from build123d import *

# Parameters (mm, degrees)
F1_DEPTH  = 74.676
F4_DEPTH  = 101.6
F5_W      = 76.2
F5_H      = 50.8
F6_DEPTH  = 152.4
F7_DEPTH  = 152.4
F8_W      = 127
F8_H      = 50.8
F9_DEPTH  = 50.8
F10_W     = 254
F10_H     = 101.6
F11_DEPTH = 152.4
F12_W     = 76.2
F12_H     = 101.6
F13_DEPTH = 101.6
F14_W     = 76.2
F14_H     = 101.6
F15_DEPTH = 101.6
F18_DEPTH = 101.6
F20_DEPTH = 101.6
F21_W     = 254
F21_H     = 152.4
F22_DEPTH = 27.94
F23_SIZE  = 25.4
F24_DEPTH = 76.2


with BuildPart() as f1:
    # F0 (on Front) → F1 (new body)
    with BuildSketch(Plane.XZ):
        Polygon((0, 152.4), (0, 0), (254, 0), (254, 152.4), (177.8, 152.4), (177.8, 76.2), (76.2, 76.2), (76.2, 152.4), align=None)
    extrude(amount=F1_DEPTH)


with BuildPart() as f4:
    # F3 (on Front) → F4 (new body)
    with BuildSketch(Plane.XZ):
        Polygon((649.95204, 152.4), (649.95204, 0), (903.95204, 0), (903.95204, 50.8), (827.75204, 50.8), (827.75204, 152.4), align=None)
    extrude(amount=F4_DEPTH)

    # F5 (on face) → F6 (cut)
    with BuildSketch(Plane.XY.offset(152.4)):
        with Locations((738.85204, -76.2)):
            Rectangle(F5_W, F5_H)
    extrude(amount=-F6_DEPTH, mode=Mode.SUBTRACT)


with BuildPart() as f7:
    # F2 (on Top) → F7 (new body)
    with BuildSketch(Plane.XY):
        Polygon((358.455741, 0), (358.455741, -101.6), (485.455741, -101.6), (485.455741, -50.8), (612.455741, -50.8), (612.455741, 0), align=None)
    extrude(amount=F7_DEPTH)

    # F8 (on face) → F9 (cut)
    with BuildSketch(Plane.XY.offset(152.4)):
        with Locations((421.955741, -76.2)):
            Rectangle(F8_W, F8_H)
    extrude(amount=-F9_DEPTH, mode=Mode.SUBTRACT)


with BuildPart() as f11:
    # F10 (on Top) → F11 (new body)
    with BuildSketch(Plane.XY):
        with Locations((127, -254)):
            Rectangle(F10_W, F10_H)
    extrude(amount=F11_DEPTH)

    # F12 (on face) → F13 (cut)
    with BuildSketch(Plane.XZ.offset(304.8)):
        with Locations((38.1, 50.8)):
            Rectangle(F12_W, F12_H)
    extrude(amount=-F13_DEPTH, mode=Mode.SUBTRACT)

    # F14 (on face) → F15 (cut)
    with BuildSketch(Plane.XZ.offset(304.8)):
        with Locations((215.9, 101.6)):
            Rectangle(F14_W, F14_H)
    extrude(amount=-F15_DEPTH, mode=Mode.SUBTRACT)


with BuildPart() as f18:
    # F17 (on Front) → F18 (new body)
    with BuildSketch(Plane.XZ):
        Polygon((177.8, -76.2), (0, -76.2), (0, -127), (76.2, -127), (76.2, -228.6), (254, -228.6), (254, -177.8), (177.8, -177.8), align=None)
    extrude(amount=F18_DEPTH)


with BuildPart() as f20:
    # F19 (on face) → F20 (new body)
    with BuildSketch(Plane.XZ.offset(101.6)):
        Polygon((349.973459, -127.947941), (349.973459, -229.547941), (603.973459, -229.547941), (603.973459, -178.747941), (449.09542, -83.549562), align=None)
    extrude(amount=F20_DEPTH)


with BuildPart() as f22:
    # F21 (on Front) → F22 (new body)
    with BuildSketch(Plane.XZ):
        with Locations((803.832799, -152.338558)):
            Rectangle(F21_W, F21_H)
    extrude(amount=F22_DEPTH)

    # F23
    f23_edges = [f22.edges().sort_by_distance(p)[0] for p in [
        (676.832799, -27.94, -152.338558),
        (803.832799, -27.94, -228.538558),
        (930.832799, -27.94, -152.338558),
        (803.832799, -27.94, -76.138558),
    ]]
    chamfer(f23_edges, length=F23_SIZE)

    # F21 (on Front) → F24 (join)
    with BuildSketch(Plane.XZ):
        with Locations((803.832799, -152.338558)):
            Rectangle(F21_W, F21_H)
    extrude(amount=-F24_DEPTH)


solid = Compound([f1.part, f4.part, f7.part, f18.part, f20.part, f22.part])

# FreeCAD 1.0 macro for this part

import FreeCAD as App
import Part
import Sketcher
Q = App.Units.Quantity


def edges_at(feature, points):
    """Names of the edges that pass closest to the given points."""
    edges = feature.Shape.Edges
    near = lambda p: min(range(len(edges)), key=lambda i: edges[i].distToShape(Part.Vertex(*p))[0])
    return sorted({f"Edge{near(p) + 1}" for p in points})

doc = App.newDocument("Part")
body = doc.addObject("PartDesign::Body", "Body")

sketch1 = doc.addObject("Sketcher::SketchObject", "Sketch")
body.addObject(sketch1)
sketch1.AttachmentSupport = (doc.XZ_Plane, [""])
sketch1.MapMode = "FlatFace"
sketch1.addGeometry([
    Part.LineSegment(App.Vector(0, 152, 0), App.Vector(0, 0, 0)),
    Part.LineSegment(App.Vector(0, 0, 0), App.Vector(254, 0, 0)),
    Part.LineSegment(App.Vector(254, 0, 0), App.Vector(254, 152, 0)),
    Part.LineSegment(App.Vector(254, 152, 0), App.Vector(178, 152, 0)),
    Part.LineSegment(App.Vector(178, 152, 0), App.Vector(178, 76, 0)),
    Part.LineSegment(App.Vector(178, 76, 0), App.Vector(76, 76, 0)),
    Part.LineSegment(App.Vector(76, 76, 0), App.Vector(76, 152, 0)),
    Part.LineSegment(App.Vector(76, 152, 0), App.Vector(0, 152, 0)),
], False)
sketch1.addConstraint([
    Sketcher.Constraint("Coincident", 0, 2, 1, 1),
    Sketcher.Constraint("Coincident", 1, 2, 2, 1),
    Sketcher.Constraint("Coincident", 2, 2, 3, 1),
    Sketcher.Constraint("Coincident", 3, 2, 4, 1),
    Sketcher.Constraint("Coincident", 4, 2, 5, 1),
    Sketcher.Constraint("Coincident", 5, 2, 6, 1),
    Sketcher.Constraint("Coincident", 6, 2, 7, 1),
    Sketcher.Constraint("Coincident", 7, 2, 0, 1),
    Sketcher.Constraint("Vertical", 0),
    Sketcher.Constraint("Horizontal", 1),
    Sketcher.Constraint("Vertical", 2),
    Sketcher.Constraint("Horizontal", 3),
    Sketcher.Constraint("Vertical", 4),
    Sketcher.Constraint("Horizontal", 5),
    Sketcher.Constraint("Vertical", 6),
    Sketcher.Constraint("Horizontal", 7),
    Sketcher.Constraint("Coincident", 0, 2, -1, 1),
    Sketcher.Constraint("Horizontal", 3, 2, 6, 2),
    Sketcher.Constraint("Equal", 3, 7),
    Sketcher.Constraint("Equal", 7, 4),
    Sketcher.Constraint("DistanceX", 1, 1, 1, 2, Q("10 in")),
    Sketcher.Constraint("DistanceX", 3, 2, 3, 1, Q("3 in")),
    Sketcher.Constraint("DistanceY", 0, 2, 0, 1, Q("6 in")),
])
pad1 = doc.addObject("PartDesign::Pad", "Pad")
body.addObject(pad1)
pad1.Profile = sketch1
pad1.Length = Q("2.94 in")
body2 = doc.addObject("PartDesign::Body", "Body001")

sketch2 = doc.addObject("Sketcher::SketchObject", "Sketch001")
body2.addObject(sketch2)
sketch2.AttachmentSupport = (doc.getObject("XZ_Plane001"), [""])
sketch2.MapMode = "FlatFace"
sketch2.addGeometry([
    Part.LineSegment(App.Vector(650, 152, 0), App.Vector(650, 0, 0)),
    Part.LineSegment(App.Vector(650, 0, 0), App.Vector(904, 0, 0)),
    Part.LineSegment(App.Vector(904, 0, 0), App.Vector(904, 51, 0)),
    Part.LineSegment(App.Vector(904, 51, 0), App.Vector(828, 51, 0)),
    Part.LineSegment(App.Vector(828, 51, 0), App.Vector(828, 152, 0)),
    Part.LineSegment(App.Vector(828, 152, 0), App.Vector(650, 152, 0)),
], False)
sketch2.addConstraint([
    Sketcher.Constraint("Coincident", 0, 2, 1, 1),
    Sketcher.Constraint("Coincident", 1, 2, 2, 1),
    Sketcher.Constraint("Coincident", 2, 2, 3, 1),
    Sketcher.Constraint("Coincident", 3, 2, 4, 1),
    Sketcher.Constraint("Coincident", 4, 2, 5, 1),
    Sketcher.Constraint("Coincident", 5, 2, 0, 1),
    Sketcher.Constraint("Vertical", 0),
    Sketcher.Constraint("Horizontal", 1),
    Sketcher.Constraint("Vertical", 2),
    Sketcher.Constraint("Horizontal", 3),
    Sketcher.Constraint("Vertical", 4),
    Sketcher.Constraint("Horizontal", 5),
    Sketcher.Constraint("PointOnObject", 0, 2, -1),
    Sketcher.Constraint("DistanceX", 1, 1, 1, 2, Q("10 in")),
    Sketcher.Constraint("DistanceX", 3, 2, 3, 1, Q("3 in")),
    Sketcher.Constraint("DistanceY", 0, 2, 0, 1, Q("6 in")),
    Sketcher.Constraint("DistanceY", 2, 1, 2, 2, Q("2 in")),
    Sketcher.Constraint("DistanceX", -1, 1, 0, 2, Q("649.95204 mm")),
])
pad2 = doc.addObject("PartDesign::Pad", "Pad001")
body2.addObject(pad2)
pad2.Profile = sketch2
pad2.Length = Q("4 in")

sketch3 = doc.addObject("Sketcher::SketchObject", "Sketch002")
body2.addObject(sketch3)
sketch3.AttachmentSupport = (doc.getObject("XY_Plane001"), [""])
sketch3.MapMode = "FlatFace"
sketch3.AttachmentOffset = App.Placement(App.Vector(0, 0, 6 * 25.4), App.Rotation())
sketch3.addGeometry([
    Part.LineSegment(App.Vector(701, -51, 0), App.Vector(701, -102, 0)),
    Part.LineSegment(App.Vector(701, -102, 0), App.Vector(777, -102, 0)),
    Part.LineSegment(App.Vector(777, -102, 0), App.Vector(777, -51, 0)),
    Part.LineSegment(App.Vector(777, -51, 0), App.Vector(701, -51, 0)),
], False)
sketch3.addConstraint([
    Sketcher.Constraint("Coincident", 0, 2, 1, 1),
    Sketcher.Constraint("Coincident", 1, 2, 2, 1),
    Sketcher.Constraint("Coincident", 2, 2, 3, 1),
    Sketcher.Constraint("Coincident", 3, 2, 0, 1),
    Sketcher.Constraint("Vertical", 0),
    Sketcher.Constraint("Horizontal", 1),
    Sketcher.Constraint("Vertical", 2),
    Sketcher.Constraint("Horizontal", 3),
    Sketcher.Constraint("DistanceX", 1, 1, 1, 2, Q("3 in")),
    Sketcher.Constraint("DistanceY", 0, 2, 0, 1, Q("2 in")),
    Sketcher.Constraint("DistanceY", 0, 2, -1, 1, Q("4 in")),
    Sketcher.Constraint("DistanceX", -1, 1, 0, 2, Q("700.75204 mm")),
])
pocket1 = doc.addObject("PartDesign::Pocket", "Pocket")
body2.addObject(pocket1)
pocket1.Profile = sketch3
pocket1.Length = Q("6 in")
body3 = doc.addObject("PartDesign::Body", "Body002")

sketch4 = doc.addObject("Sketcher::SketchObject", "Sketch003")
body3.addObject(sketch4)
sketch4.AttachmentSupport = (doc.getObject("XY_Plane002"), [""])
sketch4.MapMode = "FlatFace"
sketch4.addGeometry([
    Part.LineSegment(App.Vector(358, 0, 0), App.Vector(358, -102, 0)),
    Part.LineSegment(App.Vector(358, -102, 0), App.Vector(485, -102, 0)),
    Part.LineSegment(App.Vector(485, -102, 0), App.Vector(485, -51, 0)),
    Part.LineSegment(App.Vector(485, -51, 0), App.Vector(612, -51, 0)),
    Part.LineSegment(App.Vector(612, -51, 0), App.Vector(612, 0, 0)),
    Part.LineSegment(App.Vector(612, 0, 0), App.Vector(358, 0, 0)),
], False)
sketch4.addConstraint([
    Sketcher.Constraint("Coincident", 0, 2, 1, 1),
    Sketcher.Constraint("Coincident", 1, 2, 2, 1),
    Sketcher.Constraint("Coincident", 2, 2, 3, 1),
    Sketcher.Constraint("Coincident", 3, 2, 4, 1),
    Sketcher.Constraint("Coincident", 4, 2, 5, 1),
    Sketcher.Constraint("Coincident", 5, 2, 0, 1),
    Sketcher.Constraint("Vertical", 0),
    Sketcher.Constraint("Horizontal", 1),
    Sketcher.Constraint("Vertical", 2),
    Sketcher.Constraint("Horizontal", 3),
    Sketcher.Constraint("Vertical", 4),
    Sketcher.Constraint("Horizontal", 5),
    Sketcher.Constraint("PointOnObject", 4, 2, -1),
    Sketcher.Constraint("Equal", 1, 3),
    Sketcher.Constraint("Equal", 2, 4),
    Sketcher.Constraint("DistanceX", 1, 1, 1, 2, Q("5 in")),
    Sketcher.Constraint("DistanceY", 0, 2, 0, 1, Q("4 in")),
    Sketcher.Constraint("DistanceX", -1, 1, 0, 2, Q("358.455741 mm")),
])
pad3 = doc.addObject("PartDesign::Pad", "Pad002")
body3.addObject(pad3)
pad3.Profile = sketch4
pad3.Length = Q("6 in")

sketch5 = doc.addObject("Sketcher::SketchObject", "Sketch004")
body3.addObject(sketch5)
sketch5.AttachmentSupport = (doc.getObject("XY_Plane002"), [""])
sketch5.MapMode = "FlatFace"
sketch5.AttachmentOffset = App.Placement(App.Vector(0, 0, 6 * 25.4), App.Rotation())
sketch5.addGeometry([
    Part.LineSegment(App.Vector(358, -51, 0), App.Vector(358, -102, 0)),
    Part.LineSegment(App.Vector(358, -102, 0), App.Vector(485, -102, 0)),
    Part.LineSegment(App.Vector(485, -102, 0), App.Vector(485, -51, 0)),
    Part.LineSegment(App.Vector(485, -51, 0), App.Vector(358, -51, 0)),
], False)
sketch5.addConstraint([
    Sketcher.Constraint("Coincident", 0, 2, 1, 1),
    Sketcher.Constraint("Coincident", 1, 2, 2, 1),
    Sketcher.Constraint("Coincident", 2, 2, 3, 1),
    Sketcher.Constraint("Coincident", 3, 2, 0, 1),
    Sketcher.Constraint("Vertical", 0),
    Sketcher.Constraint("Horizontal", 1),
    Sketcher.Constraint("Vertical", 2),
    Sketcher.Constraint("Horizontal", 3),
    Sketcher.Constraint("DistanceX", 1, 1, 1, 2, Q("5 in")),
    Sketcher.Constraint("DistanceY", 0, 2, 0, 1, Q("2 in")),
    Sketcher.Constraint("DistanceY", 0, 2, -1, 1, Q("4 in")),
    Sketcher.Constraint("DistanceX", -1, 1, 0, 2, Q("358.455741 mm")),
])
pocket2 = doc.addObject("PartDesign::Pocket", "Pocket001")
body3.addObject(pocket2)
pocket2.Profile = sketch5
pocket2.Length = Q("2 in")
body4 = doc.addObject("PartDesign::Body", "Body003")

sketch6 = doc.addObject("Sketcher::SketchObject", "Sketch005")
body4.addObject(sketch6)
sketch6.AttachmentSupport = (doc.getObject("XY_Plane003"), [""])
sketch6.MapMode = "FlatFace"
sketch6.addGeometry([
    Part.LineSegment(App.Vector(0, -203, 0), App.Vector(0, -305, 0)),
    Part.LineSegment(App.Vector(0, -305, 0), App.Vector(254, -305, 0)),
    Part.LineSegment(App.Vector(254, -305, 0), App.Vector(254, -203, 0)),
    Part.LineSegment(App.Vector(254, -203, 0), App.Vector(0, -203, 0)),
], False)
sketch6.addConstraint([
    Sketcher.Constraint("Coincident", 0, 2, 1, 1),
    Sketcher.Constraint("Coincident", 1, 2, 2, 1),
    Sketcher.Constraint("Coincident", 2, 2, 3, 1),
    Sketcher.Constraint("Coincident", 3, 2, 0, 1),
    Sketcher.Constraint("Vertical", 0),
    Sketcher.Constraint("Horizontal", 1),
    Sketcher.Constraint("Vertical", 2),
    Sketcher.Constraint("Horizontal", 3),
    Sketcher.Constraint("PointOnObject", 0, 2, -2),
    Sketcher.Constraint("DistanceX", 1, 1, 1, 2, Q("10 in")),
    Sketcher.Constraint("DistanceY", 0, 2, 0, 1, Q("4 in")),
    Sketcher.Constraint("DistanceY", 0, 2, -1, 1, Q("12 in")),
])
pad4 = doc.addObject("PartDesign::Pad", "Pad003")
body4.addObject(pad4)
pad4.Profile = sketch6
pad4.Length = Q("6 in")

sketch7 = doc.addObject("Sketcher::SketchObject", "Sketch006")
body4.addObject(sketch7)
sketch7.AttachmentSupport = (doc.getObject("XZ_Plane003"), [""])
sketch7.MapMode = "FlatFace"
sketch7.AttachmentOffset = App.Placement(App.Vector(0, 0, 12 * 25.4), App.Rotation())
sketch7.addGeometry([
    Part.LineSegment(App.Vector(0, 102, 0), App.Vector(0, 0, 0)),
    Part.LineSegment(App.Vector(0, 0, 0), App.Vector(76, 0, 0)),
    Part.LineSegment(App.Vector(76, 0, 0), App.Vector(76, 102, 0)),
    Part.LineSegment(App.Vector(76, 102, 0), App.Vector(0, 102, 0)),
], False)
sketch7.addConstraint([
    Sketcher.Constraint("Coincident", 0, 2, 1, 1),
    Sketcher.Constraint("Coincident", 1, 2, 2, 1),
    Sketcher.Constraint("Coincident", 2, 2, 3, 1),
    Sketcher.Constraint("Coincident", 3, 2, 0, 1),
    Sketcher.Constraint("Vertical", 0),
    Sketcher.Constraint("Horizontal", 1),
    Sketcher.Constraint("Vertical", 2),
    Sketcher.Constraint("Horizontal", 3),
    Sketcher.Constraint("Coincident", 0, 2, -1, 1),
    Sketcher.Constraint("DistanceX", 1, 1, 1, 2, Q("3 in")),
    Sketcher.Constraint("DistanceY", 0, 2, 0, 1, Q("4 in")),
])
pocket3 = doc.addObject("PartDesign::Pocket", "Pocket002")
body4.addObject(pocket3)
pocket3.Profile = sketch7
pocket3.Length = Q("4 in")

sketch8 = doc.addObject("Sketcher::SketchObject", "Sketch007")
body4.addObject(sketch8)
sketch8.AttachmentSupport = (doc.getObject("XZ_Plane003"), [""])
sketch8.MapMode = "FlatFace"
sketch8.AttachmentOffset = App.Placement(App.Vector(0, 0, 12 * 25.4), App.Rotation())
sketch8.addGeometry([
    Part.LineSegment(App.Vector(178, 152, 0), App.Vector(178, 51, 0)),
    Part.LineSegment(App.Vector(178, 51, 0), App.Vector(254, 51, 0)),
    Part.LineSegment(App.Vector(254, 51, 0), App.Vector(254, 152, 0)),
    Part.LineSegment(App.Vector(254, 152, 0), App.Vector(178, 152, 0)),
], False)
sketch8.addConstraint([
    Sketcher.Constraint("Coincident", 0, 2, 1, 1),
    Sketcher.Constraint("Coincident", 1, 2, 2, 1),
    Sketcher.Constraint("Coincident", 2, 2, 3, 1),
    Sketcher.Constraint("Coincident", 3, 2, 0, 1),
    Sketcher.Constraint("Vertical", 0),
    Sketcher.Constraint("Horizontal", 1),
    Sketcher.Constraint("Vertical", 2),
    Sketcher.Constraint("Horizontal", 3),
    Sketcher.Constraint("DistanceX", 1, 1, 1, 2, Q("3 in")),
    Sketcher.Constraint("DistanceY", 0, 2, 0, 1, Q("4 in")),
    Sketcher.Constraint("DistanceX", -1, 1, 0, 2, Q("7 in")),
    Sketcher.Constraint("DistanceY", -1, 1, 0, 2, Q("2 in")),
])
pocket4 = doc.addObject("PartDesign::Pocket", "Pocket003")
body4.addObject(pocket4)
pocket4.Profile = sketch8
pocket4.Length = Q("4 in")
body5 = doc.addObject("PartDesign::Body", "Body004")

sketch9 = doc.addObject("Sketcher::SketchObject", "Sketch008")
body5.addObject(sketch9)
sketch9.AttachmentSupport = (doc.getObject("XZ_Plane004"), [""])
sketch9.MapMode = "FlatFace"
sketch9.addGeometry([
    Part.LineSegment(App.Vector(178, -76, 0), App.Vector(0, -76, 0)),
    Part.LineSegment(App.Vector(0, -76, 0), App.Vector(0, -127, 0)),
    Part.LineSegment(App.Vector(0, -127, 0), App.Vector(76, -127, 0)),
    Part.LineSegment(App.Vector(76, -127, 0), App.Vector(76, -229, 0)),
    Part.LineSegment(App.Vector(76, -229, 0), App.Vector(254, -229, 0)),
    Part.LineSegment(App.Vector(254, -229, 0), App.Vector(254, -178, 0)),
    Part.LineSegment(App.Vector(254, -178, 0), App.Vector(178, -178, 0)),
    Part.LineSegment(App.Vector(178, -178, 0), App.Vector(178, -76, 0)),
], False)
sketch9.addConstraint([
    Sketcher.Constraint("Coincident", 0, 2, 1, 1),
    Sketcher.Constraint("Coincident", 1, 2, 2, 1),
    Sketcher.Constraint("Coincident", 2, 2, 3, 1),
    Sketcher.Constraint("Coincident", 3, 2, 4, 1),
    Sketcher.Constraint("Coincident", 4, 2, 5, 1),
    Sketcher.Constraint("Coincident", 5, 2, 6, 1),
    Sketcher.Constraint("Coincident", 6, 2, 7, 1),
    Sketcher.Constraint("Coincident", 7, 2, 0, 1),
    Sketcher.Constraint("Horizontal", 0),
    Sketcher.Constraint("Vertical", 1),
    Sketcher.Constraint("Horizontal", 2),
    Sketcher.Constraint("Vertical", 3),
    Sketcher.Constraint("Horizontal", 4),
    Sketcher.Constraint("Vertical", 5),
    Sketcher.Constraint("Horizontal", 6),
    Sketcher.Constraint("Vertical", 7),
    Sketcher.Constraint("PointOnObject", 0, 2, -2),
    Sketcher.Constraint("Equal", 0, 4),
    Sketcher.Constraint("Equal", 1, 5),
    Sketcher.Constraint("DistanceX", 0, 2, 0, 1, Q("7 in")),
    Sketcher.Constraint("DistanceX", 2, 1, 2, 2, Q("3 in")),
    Sketcher.Constraint("DistanceY", 1, 2, 1, 1, Q("2 in")),
    Sketcher.Constraint("DistanceY", 3, 2, 3, 1, Q("4 in")),
    Sketcher.Constraint("DistanceY", 0, 2, -1, 1, Q("3 in")),
])
pad5 = doc.addObject("PartDesign::Pad", "Pad004")
body5.addObject(pad5)
pad5.Profile = sketch9
pad5.Length = Q("4 in")
body6 = doc.addObject("PartDesign::Body", "Body005")

sketch10 = doc.addObject("Sketcher::SketchObject", "Sketch009")
body6.addObject(sketch10)
sketch10.AttachmentSupport = (doc.getObject("XZ_Plane005"), [""])
sketch10.MapMode = "FlatFace"
sketch10.AttachmentOffset = App.Placement(App.Vector(0, 0, 4 * 25.4), App.Rotation())
sketch10.addGeometry([
    Part.LineSegment(App.Vector(350, -128, 0), App.Vector(350, -230, 0)),
    Part.LineSegment(App.Vector(350, -230, 0), App.Vector(604, -230, 0)),
    Part.LineSegment(App.Vector(604, -230, 0), App.Vector(604, -179, 0)),
    Part.LineSegment(App.Vector(604, -179, 0), App.Vector(449, -84, 0)),
    Part.LineSegment(App.Vector(449, -84, 0), App.Vector(350, -128, 0)),
], False)
sketch10.addConstraint([
    Sketcher.Constraint("Coincident", 0, 2, 1, 1),
    Sketcher.Constraint("Coincident", 1, 2, 2, 1),
    Sketcher.Constraint("Coincident", 2, 2, 3, 1),
    Sketcher.Constraint("Coincident", 3, 2, 4, 1),
    Sketcher.Constraint("Coincident", 4, 2, 0, 1),
    Sketcher.Constraint("Vertical", 0),
    Sketcher.Constraint("Horizontal", 1),
    Sketcher.Constraint("Vertical", 2),
    Sketcher.Constraint("DistanceX", 1, 1, 1, 2, Q("10 in")),
    Sketcher.Constraint("DistanceY", 0, 2, 0, 1, Q("4 in")),
    Sketcher.Constraint("DistanceY", 2, 1, 2, 2, Q("2 in")),
    Sketcher.Constraint("Distance", 3, Q("181.79642 mm")),
    Sketcher.Constraint("DistanceX", -1, 1, 0, 2, Q("349.973459 mm")),
    Sketcher.Constraint("DistanceY", 0, 2, -1, 1, Q("229.547941 mm")),
    Sketcher.Constraint("DistanceX", -1, 1, 3, 2, Q("449.09542 mm")),
])
pad6 = doc.addObject("PartDesign::Pad", "Pad005")
body6.addObject(pad6)
pad6.Profile = sketch10
pad6.Length = Q("4 in")
body7 = doc.addObject("PartDesign::Body", "Body006")

sketch11 = doc.addObject("Sketcher::SketchObject", "Sketch010")
body7.addObject(sketch11)
sketch11.AttachmentSupport = (doc.getObject("XZ_Plane006"), [""])
sketch11.MapMode = "FlatFace"
sketch11.addGeometry([
    Part.LineSegment(App.Vector(677, -76, 0), App.Vector(677, -229, 0)),
    Part.LineSegment(App.Vector(677, -229, 0), App.Vector(931, -229, 0)),
    Part.LineSegment(App.Vector(931, -229, 0), App.Vector(931, -76, 0)),
    Part.LineSegment(App.Vector(931, -76, 0), App.Vector(677, -76, 0)),
], False)
sketch11.addConstraint([
    Sketcher.Constraint("Coincident", 0, 2, 1, 1),
    Sketcher.Constraint("Coincident", 1, 2, 2, 1),
    Sketcher.Constraint("Coincident", 2, 2, 3, 1),
    Sketcher.Constraint("Coincident", 3, 2, 0, 1),
    Sketcher.Constraint("Vertical", 0),
    Sketcher.Constraint("Horizontal", 1),
    Sketcher.Constraint("Vertical", 2),
    Sketcher.Constraint("Horizontal", 3),
    Sketcher.Constraint("DistanceX", 1, 1, 1, 2, Q("10 in")),
    Sketcher.Constraint("DistanceY", 0, 2, 0, 1, Q("6 in")),
    Sketcher.Constraint("DistanceX", -1, 1, 0, 2, Q("676.832799 mm")),
    Sketcher.Constraint("DistanceY", 0, 2, -1, 1, Q("228.538558 mm")),
])
pad7 = doc.addObject("PartDesign::Pad", "Pad006")
body7.addObject(pad7)
pad7.Profile = sketch11
pad7.Length = Q("1.1 in")
doc.recompute()

chamfer = doc.addObject("PartDesign::Chamfer", "Chamfer")
body7.addObject(chamfer)
chamfer.Base = (pad7, edges_at(pad7, [
    (676.833, -27.94, -152.339),
    (803.833, -27.94, -228.539),
    (930.833, -27.94, -152.339),
    (803.833, -27.94, -76.139),
]))
chamfer.Size = Q("1 in")

sketch12 = doc.addObject("Sketcher::SketchObject", "Sketch011")
body7.addObject(sketch12)
sketch12.AttachmentSupport = (doc.getObject("XZ_Plane006"), [""])
sketch12.MapMode = "FlatFace"
sketch12.addGeometry([
    Part.LineSegment(App.Vector(677, -76, 0), App.Vector(677, -229, 0)),
    Part.LineSegment(App.Vector(677, -229, 0), App.Vector(931, -229, 0)),
    Part.LineSegment(App.Vector(931, -229, 0), App.Vector(931, -76, 0)),
    Part.LineSegment(App.Vector(931, -76, 0), App.Vector(677, -76, 0)),
], False)
sketch12.addConstraint([
    Sketcher.Constraint("Coincident", 0, 2, 1, 1),
    Sketcher.Constraint("Coincident", 1, 2, 2, 1),
    Sketcher.Constraint("Coincident", 2, 2, 3, 1),
    Sketcher.Constraint("Coincident", 3, 2, 0, 1),
    Sketcher.Constraint("Vertical", 0),
    Sketcher.Constraint("Horizontal", 1),
    Sketcher.Constraint("Vertical", 2),
    Sketcher.Constraint("Horizontal", 3),
    Sketcher.Constraint("DistanceX", 1, 1, 1, 2, Q("10 in")),
    Sketcher.Constraint("DistanceY", 0, 2, 0, 1, Q("6 in")),
    Sketcher.Constraint("DistanceX", -1, 1, 0, 2, Q("676.832799 mm")),
    Sketcher.Constraint("DistanceY", 0, 2, -1, 1, Q("228.538558 mm")),
])
pad8 = doc.addObject("PartDesign::Pad", "Pad007")
body7.addObject(pad8)
pad8.Profile = sketch12
pad8.Length = Q("3 in")
pad8.Reversed = True
body4.Visibility = False

doc.recompute()
